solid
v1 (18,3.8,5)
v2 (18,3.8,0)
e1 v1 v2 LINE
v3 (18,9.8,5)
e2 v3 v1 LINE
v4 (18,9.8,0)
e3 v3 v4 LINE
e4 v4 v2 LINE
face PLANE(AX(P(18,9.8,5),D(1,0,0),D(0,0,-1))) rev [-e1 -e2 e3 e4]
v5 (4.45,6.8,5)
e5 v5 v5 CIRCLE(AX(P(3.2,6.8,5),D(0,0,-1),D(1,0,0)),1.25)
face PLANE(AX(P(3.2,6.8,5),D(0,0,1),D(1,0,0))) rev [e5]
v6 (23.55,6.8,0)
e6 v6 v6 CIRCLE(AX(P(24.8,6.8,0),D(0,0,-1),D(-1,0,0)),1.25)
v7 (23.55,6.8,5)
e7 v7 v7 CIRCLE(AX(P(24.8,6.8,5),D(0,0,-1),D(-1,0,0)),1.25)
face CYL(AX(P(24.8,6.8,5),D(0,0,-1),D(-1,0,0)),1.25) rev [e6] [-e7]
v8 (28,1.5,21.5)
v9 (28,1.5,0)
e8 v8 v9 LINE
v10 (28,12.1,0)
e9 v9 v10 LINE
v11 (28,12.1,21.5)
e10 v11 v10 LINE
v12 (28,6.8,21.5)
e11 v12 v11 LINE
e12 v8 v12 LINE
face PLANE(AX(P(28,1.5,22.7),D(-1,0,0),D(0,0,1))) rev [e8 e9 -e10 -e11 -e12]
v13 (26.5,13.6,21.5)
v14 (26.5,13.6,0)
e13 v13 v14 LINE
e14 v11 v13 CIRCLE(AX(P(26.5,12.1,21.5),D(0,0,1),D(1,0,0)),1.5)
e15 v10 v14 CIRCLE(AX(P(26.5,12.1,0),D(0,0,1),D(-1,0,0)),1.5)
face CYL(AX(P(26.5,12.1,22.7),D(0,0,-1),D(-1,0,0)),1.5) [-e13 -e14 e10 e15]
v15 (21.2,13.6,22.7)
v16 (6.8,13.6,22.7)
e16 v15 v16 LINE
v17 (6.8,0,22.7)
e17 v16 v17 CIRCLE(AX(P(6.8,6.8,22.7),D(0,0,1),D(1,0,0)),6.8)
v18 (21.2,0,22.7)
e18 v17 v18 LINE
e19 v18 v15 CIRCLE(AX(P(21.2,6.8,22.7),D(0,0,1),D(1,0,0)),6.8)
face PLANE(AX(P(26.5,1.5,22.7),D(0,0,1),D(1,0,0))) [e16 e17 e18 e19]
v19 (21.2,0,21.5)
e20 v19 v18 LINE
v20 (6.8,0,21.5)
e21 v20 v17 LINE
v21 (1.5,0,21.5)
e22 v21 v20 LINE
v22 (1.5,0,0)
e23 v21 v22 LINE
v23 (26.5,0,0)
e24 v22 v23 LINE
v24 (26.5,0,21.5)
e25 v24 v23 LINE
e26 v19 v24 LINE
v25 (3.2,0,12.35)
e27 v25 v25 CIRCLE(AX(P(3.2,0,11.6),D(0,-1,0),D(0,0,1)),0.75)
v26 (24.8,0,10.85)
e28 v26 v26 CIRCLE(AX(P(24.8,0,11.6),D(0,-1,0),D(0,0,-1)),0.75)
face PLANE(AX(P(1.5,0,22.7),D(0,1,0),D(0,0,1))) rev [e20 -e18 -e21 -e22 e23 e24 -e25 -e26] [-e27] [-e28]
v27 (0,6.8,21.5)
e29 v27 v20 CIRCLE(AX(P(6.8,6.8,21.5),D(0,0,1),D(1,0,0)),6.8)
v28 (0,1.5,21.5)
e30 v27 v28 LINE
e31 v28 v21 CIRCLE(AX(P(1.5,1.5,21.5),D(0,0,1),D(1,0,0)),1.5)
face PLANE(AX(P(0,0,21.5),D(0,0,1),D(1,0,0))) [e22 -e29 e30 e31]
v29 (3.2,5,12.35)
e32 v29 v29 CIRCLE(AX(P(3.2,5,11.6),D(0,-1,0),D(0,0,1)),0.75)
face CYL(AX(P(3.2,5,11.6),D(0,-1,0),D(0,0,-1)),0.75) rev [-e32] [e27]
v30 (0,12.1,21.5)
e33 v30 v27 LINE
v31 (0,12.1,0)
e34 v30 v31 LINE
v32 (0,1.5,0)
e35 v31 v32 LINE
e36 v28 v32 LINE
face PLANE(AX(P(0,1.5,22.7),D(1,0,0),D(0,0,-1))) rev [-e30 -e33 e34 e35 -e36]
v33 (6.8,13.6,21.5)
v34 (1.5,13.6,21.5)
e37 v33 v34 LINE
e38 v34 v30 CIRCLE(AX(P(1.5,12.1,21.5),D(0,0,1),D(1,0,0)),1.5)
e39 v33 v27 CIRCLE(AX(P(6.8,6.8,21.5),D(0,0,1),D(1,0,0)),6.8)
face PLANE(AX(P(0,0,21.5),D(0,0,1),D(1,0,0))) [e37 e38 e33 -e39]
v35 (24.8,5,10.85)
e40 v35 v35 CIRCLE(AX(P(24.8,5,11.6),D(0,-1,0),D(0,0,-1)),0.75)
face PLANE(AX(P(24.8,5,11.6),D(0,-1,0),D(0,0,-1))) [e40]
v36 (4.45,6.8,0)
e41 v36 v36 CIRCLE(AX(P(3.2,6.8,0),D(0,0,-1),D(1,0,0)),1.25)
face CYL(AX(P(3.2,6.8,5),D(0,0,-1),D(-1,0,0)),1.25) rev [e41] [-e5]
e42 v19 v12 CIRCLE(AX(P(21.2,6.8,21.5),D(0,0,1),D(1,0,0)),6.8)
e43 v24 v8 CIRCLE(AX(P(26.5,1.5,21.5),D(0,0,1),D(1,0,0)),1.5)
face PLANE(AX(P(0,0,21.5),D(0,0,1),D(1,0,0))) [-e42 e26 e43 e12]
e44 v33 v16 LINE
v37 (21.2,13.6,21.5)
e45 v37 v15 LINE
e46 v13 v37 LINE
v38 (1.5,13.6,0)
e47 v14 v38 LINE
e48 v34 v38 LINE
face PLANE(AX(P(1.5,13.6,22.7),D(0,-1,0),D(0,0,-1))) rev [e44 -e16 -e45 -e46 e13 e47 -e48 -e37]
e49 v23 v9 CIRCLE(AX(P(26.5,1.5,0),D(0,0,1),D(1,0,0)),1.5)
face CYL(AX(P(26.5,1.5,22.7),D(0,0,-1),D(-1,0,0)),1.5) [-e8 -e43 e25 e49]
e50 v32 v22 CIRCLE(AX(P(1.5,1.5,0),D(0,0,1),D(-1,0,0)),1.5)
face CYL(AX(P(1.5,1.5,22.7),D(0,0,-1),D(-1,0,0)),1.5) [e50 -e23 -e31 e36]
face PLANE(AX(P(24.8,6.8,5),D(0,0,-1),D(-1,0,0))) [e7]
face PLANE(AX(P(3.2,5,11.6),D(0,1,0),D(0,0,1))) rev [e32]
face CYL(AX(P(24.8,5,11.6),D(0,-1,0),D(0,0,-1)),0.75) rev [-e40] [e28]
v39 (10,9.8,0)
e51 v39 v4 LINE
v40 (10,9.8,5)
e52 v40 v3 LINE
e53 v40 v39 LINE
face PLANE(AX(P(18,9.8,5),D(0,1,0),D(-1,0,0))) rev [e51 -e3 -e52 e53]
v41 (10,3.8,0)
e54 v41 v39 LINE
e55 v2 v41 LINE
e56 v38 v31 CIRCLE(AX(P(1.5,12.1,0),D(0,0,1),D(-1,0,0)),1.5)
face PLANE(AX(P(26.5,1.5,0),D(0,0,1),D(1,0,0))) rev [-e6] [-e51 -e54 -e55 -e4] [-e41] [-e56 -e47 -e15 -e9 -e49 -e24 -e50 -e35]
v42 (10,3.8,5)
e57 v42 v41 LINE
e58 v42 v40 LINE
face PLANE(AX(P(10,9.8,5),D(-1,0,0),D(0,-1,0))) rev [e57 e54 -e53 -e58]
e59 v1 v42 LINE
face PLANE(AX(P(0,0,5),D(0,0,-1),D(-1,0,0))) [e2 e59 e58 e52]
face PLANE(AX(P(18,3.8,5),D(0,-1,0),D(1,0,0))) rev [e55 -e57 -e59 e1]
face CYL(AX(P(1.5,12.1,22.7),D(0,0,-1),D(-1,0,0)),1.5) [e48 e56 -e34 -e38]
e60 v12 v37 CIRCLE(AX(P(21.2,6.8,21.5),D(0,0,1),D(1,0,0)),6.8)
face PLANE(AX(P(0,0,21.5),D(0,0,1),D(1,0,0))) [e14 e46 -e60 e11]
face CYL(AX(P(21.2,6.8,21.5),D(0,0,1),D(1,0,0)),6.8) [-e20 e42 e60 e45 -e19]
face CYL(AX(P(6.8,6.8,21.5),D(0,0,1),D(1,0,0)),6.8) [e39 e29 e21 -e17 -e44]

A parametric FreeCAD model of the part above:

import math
import FreeCAD as App
import Part
import Sketcher

V = App.Vector
Q = App.Units.Quantity


def add_polygon(sketch, points):
    """Adds a closed chain of lines whose ends are joined by coincident constraints."""
    first, n = sketch.GeometryCount, len(points)
    for a, b in zip(points, points[1:] + points[:1]):
        sketch.addGeometry(Part.LineSegment(App.Vector(*a, 0), App.Vector(*b, 0)), False)
    for i in range(n):
        sketch.addConstraint(Sketcher.Constraint("Coincident", first + i, 2, first + (i + 1) % n, 1))

doc = App.newDocument("Part")
body = doc.addObject("PartDesign::Body", "Body")

sketch1 = body.newObject("Sketcher::SketchObject", "Sketch")
sketch1.AttachmentSupport = (doc.getObject("XY_Plane"), [""])
sketch1.MapMode = "FlatFace"
sketch1.addGeometry(Part.LineSegment(V(1.5, 0, 0), V(26.5, 0, 0)), False)
sketch1.addGeometry(Part.ArcOfCircle(Part.Circle(V(26.5, 1.5, 0), V(0, 0, 1), 1.5), math.radians(-90), math.radians(0)), False)
sketch1.addGeometry(Part.LineSegment(V(28, 1.5, 0), V(28, 12.1, 0)), False)
sketch1.addGeometry(Part.ArcOfCircle(Part.Circle(V(26.5, 12.1, 0), V(0, 0, 1), 1.5), math.radians(0), math.radians(90)), False)
sketch1.addGeometry(Part.LineSegment(V(26.5, 13.6, 0), V(1.5, 13.6, 0)), False)
sketch1.addGeometry(Part.ArcOfCircle(Part.Circle(V(1.5, 12.1, 0), V(0, 0, 1), 1.5), math.radians(90), math.radians(180)), False)
sketch1.addGeometry(Part.LineSegment(V(0, 12.1, 0), V(0, 1.5, 0)), False)
sketch1.addGeometry(Part.ArcOfCircle(Part.Circle(V(1.5, 1.5, 0), V(0, 0, 1), 1.5), math.radians(180), math.radians(270)), False)
sketch1.addConstraint(Sketcher.Constraint("Tangent", 0, 2, 1, 1))
sketch1.addConstraint(Sketcher.Constraint("Tangent", 1, 2, 2, 1))
sketch1.addConstraint(Sketcher.Constraint("Tangent", 2, 2, 3, 1))
sketch1.addConstraint(Sketcher.Constraint("Tangent", 3, 2, 4, 1))
sketch1.addConstraint(Sketcher.Constraint("Tangent", 4, 2, 5, 1))
sketch1.addConstraint(Sketcher.Constraint("Tangent", 5, 2, 6, 1))
sketch1.addConstraint(Sketcher.Constraint("Tangent", 6, 2, 7, 1))
sketch1.addConstraint(Sketcher.Constraint("Tangent", 7, 2, 0, 1))
sketch1.addConstraint(Sketcher.Constraint("Horizontal", 0))
sketch1.addConstraint(Sketcher.Constraint("Vertical", 2))
sketch1.addConstraint(Sketcher.Constraint("Horizontal", 4))
sketch1.addConstraint(Sketcher.Constraint("Vertical", 6))
sketch1.addConstraint(Sketcher.Constraint("Equal", 1, 3))
sketch1.addConstraint(Sketcher.Constraint("Equal", 3, 5))
sketch1.addConstraint(Sketcher.Constraint("Equal", 5, 7))
sketch1.addConstraint(Sketcher.Constraint("PointOnObject", 0, 2, -1))
sketch1.addConstraint(Sketcher.Constraint("PointOnObject", 5, 2, -2))
sketch1.addConstraint(Sketcher.Constraint("Radius", 1, Q("1.5 mm")))
sketch1.addConstraint(Sketcher.Constraint("DistanceX", 0, 1, 0, 2, Q("25 mm")))
sketch1.addConstraint(Sketcher.Constraint("DistanceY", 2, 1, 2, 2, Q("10.6 mm")))
pad1 = body.newObject("PartDesign::Pad", "Pad")
pad1.Profile = sketch1
pad1.Length = 22.7

sketch2 = body.newObject("Sketcher::SketchObject", "Sketch001")
sketch2.AttachmentSupport = (doc.getObject("XY_Plane"), [""])
sketch2.MapMode = "FlatFace"
sketch2.AttachmentOffset = App.Placement(V(0, 0, 22.7), App.Rotation())
sketch2.addGeometry(Part.ArcOfCircle(Part.Circle(V(6.8, 6.8, 0), V(0, 0, 1), 6.8), math.radians(90), math.radians(180)), False)
sketch2.addGeometry(Part.LineSegment(V(6.8, 13.6, 0), V(1.5, 13.6, 0)), False)
sketch2.addGeometry(Part.ArcOfCircle(Part.Circle(V(1.5, 12.1, 0), V(0, 0, 1), 1.5), math.radians(90), math.radians(180)), False)
sketch2.addGeometry(Part.LineSegment(V(0, 12.1, 0), V(0, 6.8, 0)), False)
sketch2.addGeometry(Part.ArcOfCircle(Part.Circle(V(6.8, 6.8, 0), V(0, 0, 1), 6.8), math.radians(180), math.radians(270)), False)
sketch2.addGeometry(Part.LineSegment(V(0, 6.8, 0), V(0, 1.5, 0)), False)
sketch2.addGeometry(Part.ArcOfCircle(Part.Circle(V(1.5, 1.5, 0), V(0, 0, 1), 1.5), math.radians(180), math.radians(270)), False)
sketch2.addGeometry(Part.LineSegment(V(1.5, 0, 0), V(6.8, 0, 0)), False)
sketch2.addGeometry(Part.LineSegment(V(28, 1.5, 0), V(28, 6.8, 0)), False)
sketch2.addGeometry(Part.ArcOfCircle(Part.Circle(V(21.2, 6.8, 0), V(0, 0, 1), 6.8), math.radians(-90), math.radians(0)), False)
sketch2.addGeometry(Part.LineSegment(V(21.2, 0, 0), V(26.5, 0, 0)), False)
sketch2.addGeometry(Part.ArcOfCircle(Part.Circle(V(26.5, 1.5, 0), V(0, 0, 1), 1.5), math.radians(-90), math.radians(0)), False)
sketch2.addGeometry(Part.LineSegment(V(26.5, 13.6, 0), V(21.2, 13.6, 0)), False)
sketch2.addGeometry(Part.ArcOfCircle(Part.Circle(V(21.2, 6.8, 0), V(0, 0, 1), 6.8), math.radians(0), math.radians(90)), False)
sketch2.addGeometry(Part.LineSegment(V(28, 6.8, 0), V(28, 12.1, 0)), False)
sketch2.addGeometry(Part.ArcOfCircle(Part.Circle(V(26.5, 12.1, 0), V(0, 0, 1), 1.5), math.radians(0), math.radians(90)), False)
sketch2.addConstraint(Sketcher.Constraint("Tangent", 0, 1, 1, 1))
sketch2.addConstraint(Sketcher.Constraint("Tangent", 1, 2, 2, 1))
sketch2.addConstraint(Sketcher.Constraint("Tangent", 2, 2, 3, 1))
sketch2.addConstraint(Sketcher.Constraint("Tangent", 3, 2, 0, 2))
sketch2.addConstraint(Sketcher.Constraint("Tangent", 4, 1, 5, 1))
sketch2.addConstraint(Sketcher.Constraint("Tangent", 5, 2, 6, 1))
sketch2.addConstraint(Sketcher.Constraint("Tangent", 6, 2, 7, 1))
sketch2.addConstraint(Sketcher.Constraint("Tangent", 7, 2, 4, 2))
sketch2.addConstraint(Sketcher.Constraint("Tangent", 8, 2, 9, 2))
sketch2.addConstraint(Sketcher.Constraint("Tangent", 9, 1, 10, 1))
sketch2.addConstraint(Sketcher.Constraint("Tangent", 10, 2, 11, 1))
sketch2.addConstraint(Sketcher.Constraint("Tangent", 11, 2, 8, 1))
sketch2.addConstraint(Sketcher.Constraint("Tangent", 12, 2, 13, 2))
sketch2.addConstraint(Sketcher.Constraint("Tangent", 13, 1, 14, 1))
sketch2.addConstraint(Sketcher.Constraint("Tangent", 14, 2, 15, 1))
sketch2.addConstraint(Sketcher.Constraint("Tangent", 15, 2, 12, 1))
sketch2.addConstraint(Sketcher.Constraint("Horizontal", 1))
sketch2.addConstraint(Sketcher.Constraint("Vertical", 3))
sketch2.addConstraint(Sketcher.Constraint("Vertical", 5))
sketch2.addConstraint(Sketcher.Constraint("Horizontal", 7))
sketch2.addConstraint(Sketcher.Constraint("Vertical", 8))
sketch2.addConstraint(Sketcher.Constraint("Horizontal", 10))
sketch2.addConstraint(Sketcher.Constraint("Horizontal", 12))
sketch2.addConstraint(Sketcher.Constraint("Vertical", 14))
sketch2.addConstraint(Sketcher.Constraint("Coincident", 4, 3, 0, 3))
sketch2.addConstraint(Sketcher.Constraint("Coincident", 13, 3, 9, 3))
sketch2.addConstraint(Sketcher.Constraint("Equal", 0, 4))
sketch2.addConstraint(Sketcher.Constraint("Equal", 2, 6))
sketch2.addConstraint(Sketcher.Constraint("Equal", 4, 9))
sketch2.addConstraint(Sketcher.Constraint("Equal", 6, 11))
sketch2.addConstraint(Sketcher.Constraint("Equal", 9, 13))
sketch2.addConstraint(Sketcher.Constraint("Equal", 11, 15))
sketch2.addConstraint(Sketcher.Constraint("PointOnObject", 2, 2, -2))
sketch2.addConstraint(Sketcher.Constraint("PointOnObject", 6, 2, -1))
sketch2.addConstraint(Sketcher.Constraint("PointOnObject", 9, 1, -1))
sketch2.addConstraint(Sketcher.Constraint("Radius", 0, Q("6.8 mm")))
sketch2.addConstraint(Sketcher.Constraint("Radius", 2, Q("1.5 mm")))
sketch2.addConstraint(Sketcher.Constraint("DistanceX", -1, 1, 8, 2, Q("28 mm")))
pocket1 = body.newObject("PartDesign::Pocket", "Pocket")
pocket1.Profile = sketch2
pocket1.Length = 1.2

sketch3 = body.newObject("Sketcher::SketchObject", "Sketch002")
sketch3.AttachmentSupport = (doc.getObject("XY_Plane"), [""])
sketch3.MapMode = "FlatFace"
sketch3.addGeometry(Part.Circle(V(24.8, 6.8, 0), V(0, 0, 1), 1.2), False)
sketch3.addGeometry(Part.Circle(V(3.2, 6.8, 0), V(0, 0, 1), 1.2), False)
add_polygon(sketch3, [(18, 9.8), (18, 3.8), (10, 3.8), (10, 9.8)])
sketch3.addConstraint(Sketcher.Constraint("Vertical", 2))
sketch3.addConstraint(Sketcher.Constraint("Horizontal", 3))
sketch3.addConstraint(Sketcher.Constraint("Vertical", 4))
sketch3.addConstraint(Sketcher.Constraint("Horizontal", 5))
sketch3.addConstraint(Sketcher.Constraint("Equal", 0, 1))
sketch3.addConstraint(Sketcher.Constraint("Horizontal", 0, 3, 1, 3))
sketch3.addConstraint(Sketcher.Constraint("Diameter", 0, Q("2.5 mm")))
sketch3.addConstraint(Sketcher.Constraint("DistanceX", 3, 2, 3, 1, Q("8 mm")))
sketch3.addConstraint(Sketcher.Constraint("DistanceY", 2, 2, 2, 1, Q("6 mm")))
sketch3.addConstraint(Sketcher.Constraint("DistanceX", -1, 1, 2, 2, Q("18 mm")))
sketch3.addConstraint(Sketcher.Constraint("DistanceY", 2, 2, 0, 3, Q("3 mm")))
sketch3.addConstraint(Sketcher.Constraint("DistanceX", -1, 1, 0, 3, Q("24.8 mm")))
sketch3.addConstraint(Sketcher.Constraint("DistanceY", -1, 1, 0, 3, Q("6.8 mm")))
sketch3.addConstraint(Sketcher.Constraint("DistanceX", -1, 1, 1, 3, Q("3.2 mm")))
pocket2 = body.newObject("PartDesign::Pocket", "Pocket001")
pocket2.Profile = sketch3
pocket2.Length = 5
pocket2.Reversed = True

sketch4 = body.newObject("Sketcher::SketchObject", "Sketch003")
sketch4.AttachmentSupport = (doc.getObject("XZ_Plane"), [""])
sketch4.MapMode = "FlatFace"
sketch4.addGeometry(Part.Circle(V(24.8, 11.6, 0), V(0, 0, 1), 0.8), False)
sketch4.addGeometry(Part.Circle(V(3.2, 11.6, 0), V(0, 0, 1), 0.8), False)
sketch4.addConstraint(Sketcher.Constraint("Equal", 0, 1))
sketch4.addConstraint(Sketcher.Constraint("Horizontal", 0, 3, 1, 3))
sketch4.addConstraint(Sketcher.Constraint("Diameter", 0, Q("1.5 mm")))
sketch4.addConstraint(Sketcher.Constraint("DistanceX", -1, 1, 0, 3, Q("24.8 mm")))
sketch4.addConstraint(Sketcher.Constraint("DistanceY", -1, 1, 0, 3, Q("11.6 mm")))
sketch4.addConstraint(Sketcher.Constraint("DistanceX", -1, 1, 1, 3, Q("3.2 mm")))
pocket3 = body.newObject("PartDesign::Pocket", "Pocket002")
pocket3.Profile = sketch4
pocket3.Length = 5

doc.recompute()
